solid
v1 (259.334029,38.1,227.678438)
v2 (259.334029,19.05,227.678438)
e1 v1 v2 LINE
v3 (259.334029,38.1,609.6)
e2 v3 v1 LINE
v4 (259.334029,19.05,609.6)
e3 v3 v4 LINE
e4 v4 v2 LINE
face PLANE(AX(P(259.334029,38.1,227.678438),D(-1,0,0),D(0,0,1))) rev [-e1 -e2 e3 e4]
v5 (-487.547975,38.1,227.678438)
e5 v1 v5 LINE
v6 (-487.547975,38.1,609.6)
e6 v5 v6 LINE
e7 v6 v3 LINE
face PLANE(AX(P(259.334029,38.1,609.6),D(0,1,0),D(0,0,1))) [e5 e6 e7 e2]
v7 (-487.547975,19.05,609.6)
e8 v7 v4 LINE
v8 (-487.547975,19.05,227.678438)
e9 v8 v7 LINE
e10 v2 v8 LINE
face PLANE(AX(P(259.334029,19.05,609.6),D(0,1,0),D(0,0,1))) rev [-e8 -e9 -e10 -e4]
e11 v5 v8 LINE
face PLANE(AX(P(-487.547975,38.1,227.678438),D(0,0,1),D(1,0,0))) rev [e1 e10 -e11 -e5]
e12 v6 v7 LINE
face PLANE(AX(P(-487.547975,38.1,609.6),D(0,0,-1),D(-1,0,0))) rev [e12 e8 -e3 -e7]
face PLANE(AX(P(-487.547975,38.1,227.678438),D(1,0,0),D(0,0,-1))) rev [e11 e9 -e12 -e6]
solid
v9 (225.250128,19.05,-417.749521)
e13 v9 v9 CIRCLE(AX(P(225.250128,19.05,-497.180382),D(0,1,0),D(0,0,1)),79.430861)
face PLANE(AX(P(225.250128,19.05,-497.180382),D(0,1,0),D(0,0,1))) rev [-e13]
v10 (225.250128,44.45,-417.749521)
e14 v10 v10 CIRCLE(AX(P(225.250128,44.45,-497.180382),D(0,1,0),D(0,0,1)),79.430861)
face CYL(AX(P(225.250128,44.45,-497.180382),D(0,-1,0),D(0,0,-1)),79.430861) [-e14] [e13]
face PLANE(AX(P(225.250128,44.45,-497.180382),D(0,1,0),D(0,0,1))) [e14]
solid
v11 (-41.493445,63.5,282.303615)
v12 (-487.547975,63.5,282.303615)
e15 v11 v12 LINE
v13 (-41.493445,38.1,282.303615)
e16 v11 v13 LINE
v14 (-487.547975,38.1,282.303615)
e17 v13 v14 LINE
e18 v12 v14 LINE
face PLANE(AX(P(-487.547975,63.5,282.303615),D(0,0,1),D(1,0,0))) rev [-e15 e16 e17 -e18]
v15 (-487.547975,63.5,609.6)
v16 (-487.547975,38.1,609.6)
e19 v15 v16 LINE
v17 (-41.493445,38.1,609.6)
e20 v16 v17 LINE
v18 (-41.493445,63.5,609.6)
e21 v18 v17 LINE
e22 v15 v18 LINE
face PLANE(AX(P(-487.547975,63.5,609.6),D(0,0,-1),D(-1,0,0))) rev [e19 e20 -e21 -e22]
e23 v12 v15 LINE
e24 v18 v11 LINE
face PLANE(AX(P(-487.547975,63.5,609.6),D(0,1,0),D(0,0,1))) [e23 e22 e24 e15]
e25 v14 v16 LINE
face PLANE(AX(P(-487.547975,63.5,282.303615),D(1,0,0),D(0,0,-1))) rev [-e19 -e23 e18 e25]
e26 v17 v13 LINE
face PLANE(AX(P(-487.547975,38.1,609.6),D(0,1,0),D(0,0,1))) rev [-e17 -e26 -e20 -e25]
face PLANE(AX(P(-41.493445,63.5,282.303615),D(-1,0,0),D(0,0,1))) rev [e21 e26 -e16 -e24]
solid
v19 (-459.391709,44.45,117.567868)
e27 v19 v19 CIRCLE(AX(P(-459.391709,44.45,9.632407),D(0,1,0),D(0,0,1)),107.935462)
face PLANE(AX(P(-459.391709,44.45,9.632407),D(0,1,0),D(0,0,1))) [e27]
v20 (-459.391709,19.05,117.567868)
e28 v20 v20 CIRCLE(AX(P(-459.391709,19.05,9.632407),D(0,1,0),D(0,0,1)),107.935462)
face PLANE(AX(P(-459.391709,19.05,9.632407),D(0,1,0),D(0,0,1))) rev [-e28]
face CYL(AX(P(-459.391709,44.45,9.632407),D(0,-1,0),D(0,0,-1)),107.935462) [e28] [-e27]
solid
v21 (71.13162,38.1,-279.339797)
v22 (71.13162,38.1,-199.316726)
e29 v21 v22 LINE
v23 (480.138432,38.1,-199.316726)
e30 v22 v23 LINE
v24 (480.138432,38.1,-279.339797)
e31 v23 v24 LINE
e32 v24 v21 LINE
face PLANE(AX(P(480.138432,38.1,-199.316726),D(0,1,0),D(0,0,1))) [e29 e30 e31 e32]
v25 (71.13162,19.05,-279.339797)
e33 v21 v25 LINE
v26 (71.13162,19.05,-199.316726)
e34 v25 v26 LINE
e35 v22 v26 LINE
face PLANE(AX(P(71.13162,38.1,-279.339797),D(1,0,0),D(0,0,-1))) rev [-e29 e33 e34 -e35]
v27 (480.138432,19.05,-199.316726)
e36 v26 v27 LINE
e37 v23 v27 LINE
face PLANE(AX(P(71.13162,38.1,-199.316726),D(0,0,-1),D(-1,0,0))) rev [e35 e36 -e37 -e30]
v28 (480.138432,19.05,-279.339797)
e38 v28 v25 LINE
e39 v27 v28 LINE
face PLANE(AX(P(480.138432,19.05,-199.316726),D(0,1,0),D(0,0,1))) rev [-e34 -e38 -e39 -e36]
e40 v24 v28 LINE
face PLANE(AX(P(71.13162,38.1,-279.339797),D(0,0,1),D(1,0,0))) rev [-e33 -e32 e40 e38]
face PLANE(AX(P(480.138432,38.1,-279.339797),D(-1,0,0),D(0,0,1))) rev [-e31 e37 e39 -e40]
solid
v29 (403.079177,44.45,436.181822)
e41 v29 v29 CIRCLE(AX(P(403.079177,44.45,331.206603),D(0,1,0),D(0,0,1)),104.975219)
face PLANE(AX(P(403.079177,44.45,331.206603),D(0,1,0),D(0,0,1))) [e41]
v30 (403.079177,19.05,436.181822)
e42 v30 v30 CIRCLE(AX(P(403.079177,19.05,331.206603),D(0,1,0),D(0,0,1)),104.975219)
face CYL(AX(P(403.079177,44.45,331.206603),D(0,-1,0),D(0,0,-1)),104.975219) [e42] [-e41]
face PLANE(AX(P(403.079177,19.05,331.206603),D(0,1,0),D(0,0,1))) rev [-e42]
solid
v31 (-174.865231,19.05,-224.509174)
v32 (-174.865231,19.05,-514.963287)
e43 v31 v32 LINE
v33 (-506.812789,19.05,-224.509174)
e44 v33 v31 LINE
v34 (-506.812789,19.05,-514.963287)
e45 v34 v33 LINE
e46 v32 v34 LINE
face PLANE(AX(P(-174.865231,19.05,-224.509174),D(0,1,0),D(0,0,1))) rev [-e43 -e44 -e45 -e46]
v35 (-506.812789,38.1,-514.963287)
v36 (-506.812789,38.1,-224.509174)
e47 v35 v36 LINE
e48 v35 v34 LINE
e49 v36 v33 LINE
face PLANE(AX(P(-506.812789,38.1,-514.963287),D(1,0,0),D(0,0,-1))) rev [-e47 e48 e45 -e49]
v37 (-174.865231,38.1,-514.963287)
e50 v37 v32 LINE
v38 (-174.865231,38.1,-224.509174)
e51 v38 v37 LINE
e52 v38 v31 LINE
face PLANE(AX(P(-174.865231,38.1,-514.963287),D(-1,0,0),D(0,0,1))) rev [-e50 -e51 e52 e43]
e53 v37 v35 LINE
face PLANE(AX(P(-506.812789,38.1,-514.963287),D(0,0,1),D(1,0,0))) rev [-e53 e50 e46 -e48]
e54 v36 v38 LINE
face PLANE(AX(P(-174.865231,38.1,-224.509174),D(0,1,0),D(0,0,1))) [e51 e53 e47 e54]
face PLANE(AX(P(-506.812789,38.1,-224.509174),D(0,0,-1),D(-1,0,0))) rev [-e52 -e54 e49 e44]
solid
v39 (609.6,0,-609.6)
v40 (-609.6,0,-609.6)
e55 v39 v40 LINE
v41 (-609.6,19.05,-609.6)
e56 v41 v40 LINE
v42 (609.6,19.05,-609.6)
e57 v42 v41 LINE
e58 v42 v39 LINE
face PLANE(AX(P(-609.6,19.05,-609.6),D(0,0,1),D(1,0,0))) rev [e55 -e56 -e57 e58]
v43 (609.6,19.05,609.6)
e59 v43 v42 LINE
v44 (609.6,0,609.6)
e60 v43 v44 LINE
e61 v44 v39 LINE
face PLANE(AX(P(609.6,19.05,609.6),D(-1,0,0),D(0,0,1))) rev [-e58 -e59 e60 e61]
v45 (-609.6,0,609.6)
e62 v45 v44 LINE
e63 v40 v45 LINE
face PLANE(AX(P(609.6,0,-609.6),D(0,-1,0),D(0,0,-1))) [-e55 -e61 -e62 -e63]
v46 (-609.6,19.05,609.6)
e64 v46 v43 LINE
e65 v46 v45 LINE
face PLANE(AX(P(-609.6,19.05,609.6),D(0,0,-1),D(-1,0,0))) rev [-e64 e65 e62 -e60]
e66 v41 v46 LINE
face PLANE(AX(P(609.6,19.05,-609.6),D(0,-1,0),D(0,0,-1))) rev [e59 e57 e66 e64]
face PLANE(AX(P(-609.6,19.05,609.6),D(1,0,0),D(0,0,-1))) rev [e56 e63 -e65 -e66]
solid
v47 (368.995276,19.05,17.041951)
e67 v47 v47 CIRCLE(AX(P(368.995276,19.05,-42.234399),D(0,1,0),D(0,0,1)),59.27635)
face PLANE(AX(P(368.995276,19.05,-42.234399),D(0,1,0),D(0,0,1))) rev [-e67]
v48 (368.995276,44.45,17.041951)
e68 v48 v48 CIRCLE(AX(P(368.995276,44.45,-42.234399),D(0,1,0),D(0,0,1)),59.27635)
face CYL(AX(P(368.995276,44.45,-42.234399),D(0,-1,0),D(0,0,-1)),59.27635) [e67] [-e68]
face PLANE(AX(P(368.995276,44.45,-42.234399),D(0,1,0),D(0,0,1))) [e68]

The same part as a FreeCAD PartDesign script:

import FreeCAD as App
import Part
import Sketcher
Q = App.Units.Quantity


def add_polygon(sketch, points):
    """Adds a closed chain of lines whose ends are joined by coincident constraints."""
    first, n = sketch.GeometryCount, len(points)
    for a, b in zip(points, points[1:] + points[:1]):
        sketch.addGeometry(Part.LineSegment(App.Vector(*a, 0), App.Vector(*b, 0)), False)
    for i in range(n):
        sketch.addConstraint(Sketcher.Constraint("Coincident", first + i, 2, first + (i + 1) % n, 1))

doc = App.newDocument("Part")
body = doc.addObject("PartDesign::Body", "Body")

sketch1 = body.newObject("Sketcher::SketchObject", "Sketch")
sketch1.AttachmentSupport = (doc.getObject("XZ_Plane"), [""])
sketch1.MapMode = "FlatFace"
add_polygon(sketch1, [(-609.6, -609.6), (-609.6, 609.6), (609.6, 609.6), (609.6, -609.6)])
sketch1.addConstraint(Sketcher.Constraint("Vertical", 0))
sketch1.addConstraint(Sketcher.Constraint("Horizontal", 1))
sketch1.addConstraint(Sketcher.Constraint("Vertical", 2))
sketch1.addConstraint(Sketcher.Constraint("Horizontal", 3))
sketch1.addConstraint(Sketcher.Constraint("Symmetric", 0, 2, 2, 2, -1, 1))
sketch1.addConstraint(Sketcher.Constraint("Equal", 3, 0))
sketch1.addConstraint(Sketcher.Constraint("DistanceX", 1, 1, 1, 2, Q("48 in")))
pad1 = body.newObject("PartDesign::Pad", "Pad")
pad1.Profile = sketch1
pad1.Length = Q("0.75 in")
pad1.Reversed = True
body2 = doc.addObject("PartDesign::Body", "Body001")

sketch2 = body2.newObject("Sketcher::SketchObject", "Sketch001")
sketch2.AttachmentSupport = (doc.getObject("XZ_Plane001"), [""])
sketch2.MapMode = "FlatFace"
sketch2.AttachmentOffset = App.Placement(App.Vector(0, 0, -0.75 * 25.4), App.Rotation())
add_polygon(sketch2, [(-506.812789, -514.963287), (-506.812789, -224.509174), (-174.865231, -224.509174), (-174.865231, -514.963287)])
sketch2.addConstraint(Sketcher.Constraint("Vertical", 0))
sketch2.addConstraint(Sketcher.Constraint("Horizontal", 1))
sketch2.addConstraint(Sketcher.Constraint("Vertical", 2))
sketch2.addConstraint(Sketcher.Constraint("Horizontal", 3))
sketch2.addConstraint(Sketcher.Constraint("DistanceX", 1, 1, 1, 2, Q("331.947558 mm")))
sketch2.addConstraint(Sketcher.Constraint("DistanceY", 0, 1, 0, 2, Q("290.454113 mm")))
sketch2.addConstraint(Sketcher.Constraint("DistanceX", 0, 2, -1, 1, Q("506.812789 mm")))
sketch2.addConstraint(Sketcher.Constraint("DistanceY", 0, 2, -1, 1, Q("224.509174 mm")))
pad2 = body2.newObject("PartDesign::Pad", "Pad001")
pad2.Profile = sketch2
pad2.Length = Q("0.75 in")
pad2.Reversed = True
body3 = doc.addObject("PartDesign::Body", "Body002")

sketch3 = body3.newObject("Sketcher::SketchObject", "Sketch002")
sketch3.AttachmentSupport = (doc.getObject("XZ_Plane002"), [""])
sketch3.MapMode = "FlatFace"
sketch3.AttachmentOffset = App.Placement(App.Vector(0, 0, -0.75 * 25.4), App.Rotation())
add_polygon(sketch3, [(71.13162, -279.339797), (71.13162, -199.316726), (480.138432, -199.316726), (480.138432, -279.339797)])
sketch3.addConstraint(Sketcher.Constraint("Vertical", 0))
sketch3.addConstraint(Sketcher.Constraint("Horizontal", 1))
sketch3.addConstraint(Sketcher.Constraint("Vertical", 2))
sketch3.addConstraint(Sketcher.Constraint("Horizontal", 3))
sketch3.addConstraint(Sketcher.Constraint("DistanceY", 0, 1, 0, 2, Q("80.023072 mm")))
sketch3.addConstraint(Sketcher.Constraint("DistanceX", 1, 1, 1, 2, Q("409.006812 mm")))
sketch3.addConstraint(Sketcher.Constraint("DistanceX", -1, 1, 0, 2, Q("71.13162 mm")))
sketch3.addConstraint(Sketcher.Constraint("DistanceY", 0, 2, -1, 1, Q("199.316726 mm")))
pad3 = body3.newObject("PartDesign::Pad", "Pad002")
pad3.Profile = sketch3
pad3.Length = Q("0.75 in")
pad3.Reversed = True
body4 = doc.addObject("PartDesign::Body", "Body003")

sketch4 = body4.newObject("Sketcher::SketchObject", "Sketch003")
sketch4.AttachmentSupport = (doc.getObject("XZ_Plane003"), [""])
sketch4.MapMode = "FlatFace"
sketch4.AttachmentOffset = App.Placement(App.Vector(0, 0, -0.75 * 25.4), App.Rotation())
add_polygon(sketch4, [(-487.547975, 227.678438), (-487.547975, 609.6), (259.334029, 609.6), (259.334029, 227.678438)])
sketch4.addConstraint(Sketcher.Constraint("Vertical", 0))
sketch4.addConstraint(Sketcher.Constraint("Horizontal", 1))
sketch4.addConstraint(Sketcher.Constraint("Vertical", 2))
sketch4.addConstraint(Sketcher.Constraint("Horizontal", 3))
sketch4.addConstraint(Sketcher.Constraint("DistanceY", -1, 1, 0, 2, Q("24 in")))
sketch4.addConstraint(Sketcher.Constraint("DistanceY", 0, 1, 0, 2, Q("381.921562 mm")))
sketch4.addConstraint(Sketcher.Constraint("DistanceX", 1, 1, 1, 2, Q("746.882005 mm")))
sketch4.addConstraint(Sketcher.Constraint("DistanceX", -1, 1, 1, 2, Q("259.334029 mm")))
pad4 = body4.newObject("PartDesign::Pad", "Pad003")
pad4.Profile = sketch4
pad4.Length = Q("0.75 in")
pad4.Reversed = True
body5 = doc.addObject("PartDesign::Body", "Body004")

sketch5 = body5.newObject("Sketcher::SketchObject", "Sketch004")
sketch5.AttachmentSupport = (doc.getObject("XZ_Plane004"), [""])
sketch5.MapMode = "FlatFace"
sketch5.AttachmentOffset = App.Placement(App.Vector(0, 0, -1.5 * 25.4), App.Rotation())
add_polygon(sketch5, [(-487.547975, 282.303615), (-487.547975, 609.6), (-41.493445, 609.6), (-41.493445, 282.303615)])
sketch5.addConstraint(Sketcher.Constraint("Vertical", 0))
sketch5.addConstraint(Sketcher.Constraint("Horizontal", 1))
sketch5.addConstraint(Sketcher.Constraint("Vertical", 2))
sketch5.addConstraint(Sketcher.Constraint("Horizontal", 3))
sketch5.addConstraint(Sketcher.Constraint("DistanceY", -1, 1, 0, 2, Q("24 in")))
sketch5.addConstraint(Sketcher.Constraint("DistanceX", 1, 2, -1, 1, Q("1.6336002 in")))
sketch5.addConstraint(Sketcher.Constraint("DistanceX", 1, 1, 1, 2, Q("446.054531 mm")))
sketch5.addConstraint(Sketcher.Constraint("DistanceY", 0, 1, 0, 2, Q("327.296385 mm")))
pad5 = body5.newObject("PartDesign::Pad", "Pad004")
pad5.Profile = sketch5
pad5.Length = Q("1 in")
pad5.Reversed = True
body6 = doc.addObject("PartDesign::Body", "Body005")

sketch6 = body6.newObject("Sketcher::SketchObject", "Sketch005")
sketch6.AttachmentSupport = (doc.getObject("XZ_Plane005"), [""])
sketch6.MapMode = "FlatFace"
sketch6.AttachmentOffset = App.Placement(App.Vector(0, 0, -0.75 * 25.4), App.Rotation())
sketch6.addGeometry(Part.Circle(App.Vector(-459.391709, 9.632407, 0), App.Vector(0, 0, 1), 107.935462), False)
sketch6.addConstraint(Sketcher.Constraint("Diameter", 0, Q("215.870923 mm")))
sketch6.addConstraint(Sketcher.Constraint("DistanceX", 0, 3, -1, 1, Q("459.391709 mm")))
sketch6.addConstraint(Sketcher.Constraint("DistanceY", -1, 1, 0, 3, Q("9.632407 mm")))
pad6 = body6.newObject("PartDesign::Pad", "Pad005")
pad6.Profile = sketch6
pad6.Length = Q("1 in")
pad6.Reversed = True
body7 = doc.addObject("PartDesign::Body", "Body006")

sketch7 = body7.newObject("Sketcher::SketchObject", "Sketch006")
sketch7.AttachmentSupport = (doc.getObject("XZ_Plane006"), [""])
sketch7.MapMode = "FlatFace"
sketch7.AttachmentOffset = App.Placement(App.Vector(0, 0, -0.75 * 25.4), App.Rotation())
sketch7.addGeometry(Part.Circle(App.Vector(368.995276, -42.234399, 0), App.Vector(0, 0, 1), 59.27635), False)
sketch7.addConstraint(Sketcher.Constraint("Diameter", 0, Q("118.552699 mm")))
sketch7.addConstraint(Sketcher.Constraint("DistanceY", 0, 3, -1, 1, Q("42.234399 mm")))
sketch7.addConstraint(Sketcher.Constraint("DistanceX", -1, 1, 0, 3, Q("368.995276 mm")))
pad7 = body7.newObject("PartDesign::Pad", "Pad006")
pad7.Profile = sketch7
pad7.Length = Q("1 in")
pad7.Reversed = True
body8 = doc.addObject("PartDesign::Body", "Body007")

sketch8 = body8.newObject("Sketcher::SketchObject", "Sketch007")
sketch8.AttachmentSupport = (doc.getObject("XZ_Plane007"), [""])
sketch8.MapMode = "FlatFace"
sketch8.AttachmentOffset = App.Placement(App.Vector(0, 0, -0.75 * 25.4), App.Rotation())
sketch8.addGeometry(Part.Circle(App.Vector(225.250128, -497.180382, 0), App.Vector(0, 0, 1), 79.430861), False)
sketch8.addConstraint(Sketcher.Constraint("Diameter", 0, Q("158.861723 mm")))
sketch8.addConstraint(Sketcher.Constraint("DistanceX", -1, 1, 0, 3, Q("225.250128 mm")))
sketch8.addConstraint(Sketcher.Constraint("DistanceY", 0, 3, -1, 1, Q("497.180382 mm")))
pad8 = body8.newObject("PartDesign::Pad", "Pad007")
pad8.Profile = sketch8
pad8.Length = Q("1 in")
pad8.Reversed = True
body9 = doc.addObject("PartDesign::Body", "Body008")

sketch9 = body9.newObject("Sketcher::SketchObject", "Sketch008")
sketch9.AttachmentSupport = (doc.getObject("XZ_Plane008"), [""])
sketch9.MapMode = "FlatFace"
sketch9.AttachmentOffset = App.Placement(App.Vector(0, 0, -0.75 * 25.4), App.Rotation())
sketch9.addGeometry(Part.Circle(App.Vector(403.079177, 331.206603, 0), App.Vector(0, 0, 1), 104.975219), False)
sketch9.addConstraint(Sketcher.Constraint("Diameter", 0, Q("209.950437 mm")))
sketch9.addConstraint(Sketcher.Constraint("DistanceX", -1, 1, 0, 3, Q("403.079177 mm")))
sketch9.addConstraint(Sketcher.Constraint("DistanceY", -1, 1, 0, 3, Q("331.206603 mm")))
pad9 = body9.newObject("PartDesign::Pad", "Pad008")
pad9.Profile = sketch9
pad9.Length = Q("1 in")
pad9.Reversed = True

doc.recompute()
